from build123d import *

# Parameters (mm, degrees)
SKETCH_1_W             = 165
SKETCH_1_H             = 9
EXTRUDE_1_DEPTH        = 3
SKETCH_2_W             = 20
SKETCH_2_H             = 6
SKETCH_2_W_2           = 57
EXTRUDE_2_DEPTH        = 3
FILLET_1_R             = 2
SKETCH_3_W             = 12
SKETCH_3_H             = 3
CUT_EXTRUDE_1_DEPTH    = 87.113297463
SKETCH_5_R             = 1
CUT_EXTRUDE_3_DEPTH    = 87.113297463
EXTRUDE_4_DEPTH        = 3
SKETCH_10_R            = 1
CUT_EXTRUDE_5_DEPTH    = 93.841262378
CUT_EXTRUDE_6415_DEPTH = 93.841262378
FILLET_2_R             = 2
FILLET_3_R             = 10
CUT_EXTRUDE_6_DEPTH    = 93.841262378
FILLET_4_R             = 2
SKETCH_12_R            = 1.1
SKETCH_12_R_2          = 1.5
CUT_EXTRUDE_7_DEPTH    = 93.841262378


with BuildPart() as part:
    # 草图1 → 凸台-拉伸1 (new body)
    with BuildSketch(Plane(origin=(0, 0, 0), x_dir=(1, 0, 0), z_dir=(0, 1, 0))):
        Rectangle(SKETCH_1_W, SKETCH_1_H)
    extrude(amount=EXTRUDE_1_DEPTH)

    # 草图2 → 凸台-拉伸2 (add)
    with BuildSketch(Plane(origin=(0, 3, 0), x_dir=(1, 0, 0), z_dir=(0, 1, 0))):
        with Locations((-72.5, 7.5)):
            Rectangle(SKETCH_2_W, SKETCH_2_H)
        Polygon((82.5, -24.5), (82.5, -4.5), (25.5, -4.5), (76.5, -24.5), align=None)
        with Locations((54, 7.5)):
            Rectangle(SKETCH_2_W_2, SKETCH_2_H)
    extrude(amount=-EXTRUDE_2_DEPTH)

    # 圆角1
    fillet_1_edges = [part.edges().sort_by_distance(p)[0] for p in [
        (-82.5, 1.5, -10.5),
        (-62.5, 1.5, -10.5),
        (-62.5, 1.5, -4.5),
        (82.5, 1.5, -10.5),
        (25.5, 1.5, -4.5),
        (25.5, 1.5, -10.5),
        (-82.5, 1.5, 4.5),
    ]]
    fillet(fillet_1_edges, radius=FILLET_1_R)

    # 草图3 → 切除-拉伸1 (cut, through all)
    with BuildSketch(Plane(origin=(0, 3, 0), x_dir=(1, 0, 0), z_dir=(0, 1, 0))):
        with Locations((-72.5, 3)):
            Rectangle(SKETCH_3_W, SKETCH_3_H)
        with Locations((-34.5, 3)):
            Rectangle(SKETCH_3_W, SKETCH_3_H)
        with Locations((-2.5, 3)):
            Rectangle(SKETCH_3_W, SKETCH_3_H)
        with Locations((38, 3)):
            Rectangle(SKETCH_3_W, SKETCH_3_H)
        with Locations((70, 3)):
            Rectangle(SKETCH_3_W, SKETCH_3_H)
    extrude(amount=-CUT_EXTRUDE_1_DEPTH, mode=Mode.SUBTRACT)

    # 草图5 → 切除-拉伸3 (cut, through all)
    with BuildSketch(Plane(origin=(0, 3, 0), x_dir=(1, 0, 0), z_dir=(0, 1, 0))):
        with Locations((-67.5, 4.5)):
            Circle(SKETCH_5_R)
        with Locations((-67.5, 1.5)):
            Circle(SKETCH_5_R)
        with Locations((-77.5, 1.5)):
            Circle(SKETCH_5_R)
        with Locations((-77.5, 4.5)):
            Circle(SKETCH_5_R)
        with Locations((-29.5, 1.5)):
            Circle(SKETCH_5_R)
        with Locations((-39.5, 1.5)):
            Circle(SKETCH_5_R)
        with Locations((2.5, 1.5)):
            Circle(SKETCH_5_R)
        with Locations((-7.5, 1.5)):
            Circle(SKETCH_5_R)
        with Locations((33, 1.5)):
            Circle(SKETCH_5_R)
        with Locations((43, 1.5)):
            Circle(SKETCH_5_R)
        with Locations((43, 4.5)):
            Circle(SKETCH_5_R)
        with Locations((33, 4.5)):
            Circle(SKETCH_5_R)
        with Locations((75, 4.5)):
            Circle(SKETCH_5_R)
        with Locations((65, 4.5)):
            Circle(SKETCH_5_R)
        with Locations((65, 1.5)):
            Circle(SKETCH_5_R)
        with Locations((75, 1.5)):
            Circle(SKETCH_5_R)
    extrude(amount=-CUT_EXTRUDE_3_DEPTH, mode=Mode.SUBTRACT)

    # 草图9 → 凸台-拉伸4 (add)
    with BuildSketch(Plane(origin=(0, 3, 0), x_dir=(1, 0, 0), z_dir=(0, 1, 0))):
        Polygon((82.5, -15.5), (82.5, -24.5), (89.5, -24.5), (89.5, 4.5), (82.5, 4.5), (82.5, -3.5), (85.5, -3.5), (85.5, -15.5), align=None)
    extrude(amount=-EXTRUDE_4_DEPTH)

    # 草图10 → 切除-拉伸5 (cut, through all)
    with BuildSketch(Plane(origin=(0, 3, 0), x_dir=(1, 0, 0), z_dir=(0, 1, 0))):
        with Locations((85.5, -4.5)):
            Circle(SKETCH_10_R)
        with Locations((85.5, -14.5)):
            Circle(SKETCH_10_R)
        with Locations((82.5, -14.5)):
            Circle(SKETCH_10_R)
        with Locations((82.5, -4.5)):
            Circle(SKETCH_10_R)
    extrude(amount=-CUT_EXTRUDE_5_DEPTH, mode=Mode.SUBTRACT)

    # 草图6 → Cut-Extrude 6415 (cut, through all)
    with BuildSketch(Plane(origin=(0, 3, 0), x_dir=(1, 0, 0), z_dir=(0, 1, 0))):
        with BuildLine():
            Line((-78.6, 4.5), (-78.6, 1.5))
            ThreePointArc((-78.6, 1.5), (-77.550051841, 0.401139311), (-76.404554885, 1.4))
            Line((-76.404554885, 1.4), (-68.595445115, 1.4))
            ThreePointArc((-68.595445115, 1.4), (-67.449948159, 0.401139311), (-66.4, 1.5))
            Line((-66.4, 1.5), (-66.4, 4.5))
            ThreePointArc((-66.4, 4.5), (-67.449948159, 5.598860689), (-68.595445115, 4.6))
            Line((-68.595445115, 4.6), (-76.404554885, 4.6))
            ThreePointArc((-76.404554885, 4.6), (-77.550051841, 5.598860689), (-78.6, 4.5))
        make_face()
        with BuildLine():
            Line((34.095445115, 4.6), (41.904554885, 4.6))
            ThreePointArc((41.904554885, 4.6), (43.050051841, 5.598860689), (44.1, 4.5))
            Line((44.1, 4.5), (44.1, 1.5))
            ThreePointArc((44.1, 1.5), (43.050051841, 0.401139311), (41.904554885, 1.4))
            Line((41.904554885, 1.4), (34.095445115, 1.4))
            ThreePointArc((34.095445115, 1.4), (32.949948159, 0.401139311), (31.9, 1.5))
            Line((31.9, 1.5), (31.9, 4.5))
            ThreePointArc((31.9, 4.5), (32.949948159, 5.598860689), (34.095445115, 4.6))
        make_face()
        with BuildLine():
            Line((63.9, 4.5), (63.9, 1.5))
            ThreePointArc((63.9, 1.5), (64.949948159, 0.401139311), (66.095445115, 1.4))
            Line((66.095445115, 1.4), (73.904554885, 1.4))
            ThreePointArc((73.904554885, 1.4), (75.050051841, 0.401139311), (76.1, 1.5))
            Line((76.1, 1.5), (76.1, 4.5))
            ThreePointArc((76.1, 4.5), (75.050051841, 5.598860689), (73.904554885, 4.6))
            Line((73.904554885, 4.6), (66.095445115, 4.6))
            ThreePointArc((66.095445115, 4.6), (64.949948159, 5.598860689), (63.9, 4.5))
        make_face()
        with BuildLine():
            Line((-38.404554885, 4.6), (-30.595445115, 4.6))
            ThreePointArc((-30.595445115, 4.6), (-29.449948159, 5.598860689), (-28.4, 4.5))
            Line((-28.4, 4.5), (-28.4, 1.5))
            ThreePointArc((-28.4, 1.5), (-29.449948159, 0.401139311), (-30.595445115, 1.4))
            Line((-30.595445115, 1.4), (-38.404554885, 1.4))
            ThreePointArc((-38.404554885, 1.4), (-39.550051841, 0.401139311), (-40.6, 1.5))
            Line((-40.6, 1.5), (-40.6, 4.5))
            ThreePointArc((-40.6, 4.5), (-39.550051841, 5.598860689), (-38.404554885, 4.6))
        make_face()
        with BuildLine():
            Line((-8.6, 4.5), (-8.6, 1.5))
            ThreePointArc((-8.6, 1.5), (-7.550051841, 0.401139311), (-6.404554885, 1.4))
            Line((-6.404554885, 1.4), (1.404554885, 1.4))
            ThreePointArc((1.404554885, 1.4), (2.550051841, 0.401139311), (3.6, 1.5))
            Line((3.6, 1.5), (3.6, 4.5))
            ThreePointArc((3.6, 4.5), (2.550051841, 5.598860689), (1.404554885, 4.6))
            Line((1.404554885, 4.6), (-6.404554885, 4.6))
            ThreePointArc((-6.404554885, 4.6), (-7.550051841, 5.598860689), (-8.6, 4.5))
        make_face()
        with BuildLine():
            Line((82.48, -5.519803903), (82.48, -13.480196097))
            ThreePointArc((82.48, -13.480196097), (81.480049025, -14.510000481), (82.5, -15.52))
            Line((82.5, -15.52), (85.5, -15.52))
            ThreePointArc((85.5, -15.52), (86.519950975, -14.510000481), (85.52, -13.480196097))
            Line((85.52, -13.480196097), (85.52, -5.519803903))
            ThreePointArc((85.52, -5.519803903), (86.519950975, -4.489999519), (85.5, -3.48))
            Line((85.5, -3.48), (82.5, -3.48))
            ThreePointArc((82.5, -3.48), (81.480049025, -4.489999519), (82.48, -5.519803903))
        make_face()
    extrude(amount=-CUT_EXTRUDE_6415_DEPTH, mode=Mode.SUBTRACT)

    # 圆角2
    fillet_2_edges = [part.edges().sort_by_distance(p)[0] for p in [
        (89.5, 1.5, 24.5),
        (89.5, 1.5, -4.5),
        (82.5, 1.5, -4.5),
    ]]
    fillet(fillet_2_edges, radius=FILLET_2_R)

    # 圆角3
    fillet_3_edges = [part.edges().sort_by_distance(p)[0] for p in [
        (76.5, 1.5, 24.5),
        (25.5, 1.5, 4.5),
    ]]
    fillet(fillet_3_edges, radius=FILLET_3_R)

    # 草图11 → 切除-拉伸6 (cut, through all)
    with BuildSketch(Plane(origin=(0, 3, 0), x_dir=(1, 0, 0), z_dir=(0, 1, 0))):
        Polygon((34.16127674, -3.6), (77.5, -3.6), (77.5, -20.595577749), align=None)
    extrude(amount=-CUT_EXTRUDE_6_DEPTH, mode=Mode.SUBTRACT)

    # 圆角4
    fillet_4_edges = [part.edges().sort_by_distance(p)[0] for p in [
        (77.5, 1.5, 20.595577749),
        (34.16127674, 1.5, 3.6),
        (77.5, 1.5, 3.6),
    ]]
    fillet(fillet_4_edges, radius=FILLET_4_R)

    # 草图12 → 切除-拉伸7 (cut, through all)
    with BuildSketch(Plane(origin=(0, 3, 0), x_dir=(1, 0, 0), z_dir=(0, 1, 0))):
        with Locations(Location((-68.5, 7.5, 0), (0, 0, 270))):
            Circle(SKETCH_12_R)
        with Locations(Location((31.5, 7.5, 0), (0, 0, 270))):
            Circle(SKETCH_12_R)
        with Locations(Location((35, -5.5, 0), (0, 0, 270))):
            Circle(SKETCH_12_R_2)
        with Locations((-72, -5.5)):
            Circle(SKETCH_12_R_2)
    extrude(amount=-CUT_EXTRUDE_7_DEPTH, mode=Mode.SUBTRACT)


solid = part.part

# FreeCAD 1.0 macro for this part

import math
import FreeCAD as App
import Part
import Sketcher
Q = App.Units.Quantity


def edges_at(feature, points):
    """Names of the edges that pass closest to the given points."""
    edges = feature.Shape.Edges
    near = lambda p: min(range(len(edges)), key=lambda i: edges[i].distToShape(Part.Vertex(*p))[0])
    return sorted({f"Edge{near(p) + 1}" for p in points})


def add_polygon(sketch, points):
    """Adds a closed chain of lines whose ends are joined by coincident constraints."""
    first, n = sketch.GeometryCount, len(points)
    for a, b in zip(points, points[1:] + points[:1]):
        sketch.addGeometry(Part.LineSegment(App.Vector(*a, 0), App.Vector(*b, 0)), False)
    for i in range(n):
        sketch.addConstraint(Sketcher.Constraint("Coincident", first + i, 2, first + (i + 1) % n, 1))

doc = App.newDocument("Part")
body = doc.addObject("PartDesign::Body", "Body")

sketch1 = doc.addObject("Sketcher::SketchObject", "Sketch")
body.addObject(sketch1)
sketch1.AttachmentSupport = (doc.XZ_Plane, [""])
sketch1.MapMode = "FlatFace"
add_polygon(sketch1, [(-82, -4), (-82, 4), (82, 4), (82, -4)])
sketch1.addConstraint(Sketcher.Constraint("Vertical", 0))
sketch1.addConstraint(Sketcher.Constraint("Horizontal", 1))
sketch1.addConstraint(Sketcher.Constraint("Vertical", 2))
sketch1.addConstraint(Sketcher.Constraint("Horizontal", 3))
sketch1.addConstraint(Sketcher.Constraint("Symmetric", 0, 2, 2, 2, -1, 1))
sketch1.addConstraint(Sketcher.Constraint("DistanceX", 1, 1, 1, 2, Q("165 mm")))
sketch1.addConstraint(Sketcher.Constraint("DistanceY", 0, 1, 0, 2, Q("9 mm")))
pad1 = doc.addObject("PartDesign::Pad", "Pad")
body.addObject(pad1)
pad1.Profile = sketch1
pad1.Length = 3
pad1.Reversed = True

sketch2 = doc.addObject("Sketcher::SketchObject", "Sketch001")
body.addObject(sketch2)
sketch2.AttachmentSupport = (doc.XZ_Plane, [""])
sketch2.MapMode = "FlatFace"
sketch2.AttachmentOffset = App.Placement(App.Vector(0, 0, -3), App.Rotation())
add_polygon(sketch2, [(-82, -10), (-82, -4), (-62, -4), (-62, -10)])
add_polygon(sketch2, [(82, 24), (82, 4), (26, 4), (76, 24)])
add_polygon(sketch2, [(26, -10), (26, -4), (82, -4), (82, -10)])
sketch2.addConstraint(Sketcher.Constraint("Vertical", 0))
sketch2.addConstraint(Sketcher.Constraint("Horizontal", 1))
sketch2.addConstraint(Sketcher.Constraint("Vertical", 2))
sketch2.addConstraint(Sketcher.Constraint("Horizontal", 3))
sketch2.addConstraint(Sketcher.Constraint("Vertical", 4))
sketch2.addConstraint(Sketcher.Constraint("Horizontal", 5))
sketch2.addConstraint(Sketcher.Constraint("Horizontal", 7))
sketch2.addConstraint(Sketcher.Constraint("Vertical", 8))
sketch2.addConstraint(Sketcher.Constraint("Horizontal", 9))
sketch2.addConstraint(Sketcher.Constraint("Vertical", 10))
sketch2.addConstraint(Sketcher.Constraint("Horizontal", 11))
sketch2.addConstraint(Sketcher.Constraint("Symmetric", 0, 2, 4, 2, -1, 1))
sketch2.addConstraint(Sketcher.Constraint("Symmetric", 0, 2, 9, 2, -2))
sketch2.addConstraint(Sketcher.Constraint("Horizontal", 3, 2, 10, 2))
sketch2.addConstraint(Sketcher.Constraint("Vertical", 5, 2, 8, 2))
sketch2.addConstraint(Sketcher.Constraint("Equal", 7, 0))
sketch2.addConstraint(Sketcher.Constraint("Equal", 3, 4))
sketch2.addConstraint(Sketcher.Constraint("DistanceX", 1, 1, 1, 2, Q("20 mm")))
sketch2.addConstraint(Sketcher.Constraint("DistanceX", 5, 2, 5, 1, Q("57 mm")))
sketch2.addConstraint(Sketcher.Constraint("DistanceX", 7, 1, 7, 2, Q("6 mm")))
sketch2.addConstraint(Sketcher.Constraint("DistanceX", 1, 2, 4, 2, Q("145 mm")))
sketch2.addConstraint(Sketcher.Constraint("DistanceY", 1, 2, 4, 2, Q("9 mm")))
pad2 = doc.addObject("PartDesign::Pad", "Pad001")
body.addObject(pad2)
pad2.Profile = sketch2
pad2.Length = 3
doc.recompute()

fillet = doc.addObject("PartDesign::Fillet", "Fillet")
body.addObject(fillet)
fillet.Base = (pad2, edges_at(pad2, [
    (-82.5, 1.5, -10.5),
    (-62.5, 1.5, -10.5),
    (-62.5, 1.5, -4.5),
    (82.5, 1.5, -10.5),
    (25.5, 1.5, -4.5),
    (25.5, 1.5, -10.5),
    (-82.5, 1.5, 4.5),
]))
fillet.Radius = 2

sketch3 = doc.addObject("Sketcher::SketchObject", "Sketch002")
body.addObject(sketch3)
sketch3.AttachmentSupport = (doc.XZ_Plane, [""])
sketch3.MapMode = "FlatFace"
sketch3.AttachmentOffset = App.Placement(App.Vector(0, 0, -3), App.Rotation())
add_polygon(sketch3, [(-78.5, -4.5), (-78.5, -1.5), (-66.5, -1.5), (-66.5, -4.5)])
add_polygon(sketch3, [(-40.5, -4.5), (-40.5, -1.5), (-28.5, -1.5), (-28.5, -4.5)])
add_polygon(sketch3, [(-8.5, -4.5), (-8.5, -1.5), (3.5, -1.5), (3.5, -4.5)])
add_polygon(sketch3, [(32, -4.5), (32, -1.5), (44, -1.5), (44, -4.5)])
add_polygon(sketch3, [(64, -4.5), (64, -1.5), (76, -1.5), (76, -4.5)])
sketch3.addConstraint(Sketcher.Constraint("Vertical", 0))
sketch3.addConstraint(Sketcher.Constraint("Horizontal", 1))
sketch3.addConstraint(Sketcher.Constraint("Vertical", 2))
sketch3.addConstraint(Sketcher.Constraint("Horizontal", 3))
sketch3.addConstraint(Sketcher.Constraint("Vertical", 4))
sketch3.addConstraint(Sketcher.Constraint("Horizontal", 5))
sketch3.addConstraint(Sketcher.Constraint("Vertical", 6))
sketch3.addConstraint(Sketcher.Constraint("Horizontal", 7))
sketch3.addConstraint(Sketcher.Constraint("Vertical", 8))
sketch3.addConstraint(Sketcher.Constraint("Horizontal", 9))
sketch3.addConstraint(Sketcher.Constraint("Vertical", 10))
sketch3.addConstraint(Sketcher.Constraint("Horizontal", 11))
sketch3.addConstraint(Sketcher.Constraint("Vertical", 12))
sketch3.addConstraint(Sketcher.Constraint("Horizontal", 13))
sketch3.addConstraint(Sketcher.Constraint("Vertical", 14))
sketch3.addConstraint(Sketcher.Constraint("Horizontal", 15))
sketch3.addConstraint(Sketcher.Constraint("Vertical", 16))
sketch3.addConstraint(Sketcher.Constraint("Horizontal", 17))
sketch3.addConstraint(Sketcher.Constraint("Vertical", 18))
sketch3.addConstraint(Sketcher.Constraint("Horizontal", 19))
sketch3.addConstraint(Sketcher.Constraint("Horizontal", 1, 2, 4, 2))
sketch3.addConstraint(Sketcher.Constraint("Horizontal", 3, 2, 6, 2))
sketch3.addConstraint(Sketcher.Constraint("Horizontal", 5, 2, 8, 2))
sketch3.addConstraint(Sketcher.Constraint("Horizontal", 7, 2, 10, 2))
sketch3.addConstraint(Sketcher.Constraint("Horizontal", 9, 2, 12, 2))
sketch3.addConstraint(Sketcher.Constraint("Horizontal", 11, 2, 14, 2))
sketch3.addConstraint(Sketcher.Constraint("Horizontal", 13, 2, 16, 2))
sketch3.addConstraint(Sketcher.Constraint("Horizontal", 15, 2, 18, 2))
sketch3.addConstraint(Sketcher.Constraint("Equal", 3, 5))
sketch3.addConstraint(Sketcher.Constraint("Equal", 7, 9))
sketch3.addConstraint(Sketcher.Constraint("Equal", 11, 13))
sketch3.addConstraint(Sketcher.Constraint("Equal", 15, 17))
sketch3.addConstraint(Sketcher.Constraint("DistanceX", 1, 1, 1, 2, Q("12 mm")))
sketch3.addConstraint(Sketcher.Constraint("DistanceY", 0, 1, 0, 2, Q("3 mm")))
sketch3.addConstraint(Sketcher.Constraint("DistanceX", -1, 1, 12, 2, Q("32 mm")))
sketch3.addConstraint(Sketcher.Constraint("DistanceX", -1, 1, 16, 2, Q("64 mm")))
sketch3.addConstraint(Sketcher.Constraint("DistanceX", 1, 2, 4, 2, Q("26 mm")))
sketch3.addConstraint(Sketcher.Constraint("DistanceX", 5, 2, 8, 2, Q("20 mm")))
sketch3.addConstraint(Sketcher.Constraint("DistanceX", 0, 2, -1, 1, Q("78.5 mm")))
sketch3.addConstraint(Sketcher.Constraint("DistanceY", 0, 2, -1, 1, Q("1.5 mm")))
pocket1 = doc.addObject("PartDesign::Pocket", "Pocket")
body.addObject(pocket1)
pocket1.Profile = sketch3
pocket1.Type = "ThroughAll"
pocket1.Reversed = True

sketch4 = doc.addObject("Sketcher::SketchObject", "Sketch003")
body.addObject(sketch4)
sketch4.AttachmentSupport = (doc.XZ_Plane, [""])
sketch4.MapMode = "FlatFace"
sketch4.AttachmentOffset = App.Placement(App.Vector(0, 0, -3), App.Rotation())
sketch4.addGeometry(Part.Circle(App.Vector(-67.5, -4.5, 0), App.Vector(0, 0, 1), 1), False)
sketch4.addGeometry(Part.Circle(App.Vector(-67.5, -1.5, 0), App.Vector(0, 0, 1), 1), False)
sketch4.addGeometry(Part.Circle(App.Vector(-77.5, -1.5, 0), App.Vector(0, 0, 1), 1), False)
sketch4.addGeometry(Part.Circle(App.Vector(-77.5, -4.5, 0), App.Vector(0, 0, 1), 1), False)
sketch4.addGeometry(Part.Circle(App.Vector(-29.5, -1.5, 0), App.Vector(0, 0, 1), 1), False)
sketch4.addGeometry(Part.Circle(App.Vector(-39.5, -1.5, 0), App.Vector(0, 0, 1), 1), False)
sketch4.addGeometry(Part.Circle(App.Vector(2.5, -1.5, 0), App.Vector(0, 0, 1), 1), False)
sketch4.addGeometry(Part.Circle(App.Vector(-7.5, -1.5, 0), App.Vector(0, 0, 1), 1), False)
sketch4.addGeometry(Part.Circle(App.Vector(33, -1.5, 0), App.Vector(0, 0, 1), 1), False)
sketch4.addGeometry(Part.Circle(App.Vector(43, -1.5, 0), App.Vector(0, 0, 1), 1), False)
sketch4.addGeometry(Part.Circle(App.Vector(43, -4.5, 0), App.Vector(0, 0, 1), 1), False)
sketch4.addGeometry(Part.Circle(App.Vector(33, -4.5, 0), App.Vector(0, 0, 1), 1), False)
sketch4.addGeometry(Part.Circle(App.Vector(75, -4.5, 0), App.Vector(0, 0, 1), 1), False)
sketch4.addGeometry(Part.Circle(App.Vector(65, -4.5, 0), App.Vector(0, 0, 1), 1), False)
sketch4.addGeometry(Part.Circle(App.Vector(65, -1.5, 0), App.Vector(0, 0, 1), 1), False)
sketch4.addGeometry(Part.Circle(App.Vector(75, -1.5, 0), App.Vector(0, 0, 1), 1), False)
sketch4.addConstraint(Sketcher.Constraint("Equal", 0, 1))
sketch4.addConstraint(Sketcher.Constraint("Equal", 1, 2))
sketch4.addConstraint(Sketcher.Constraint("Equal", 2, 3))
sketch4.addConstraint(Sketcher.Constraint("Equal", 3, 4))
sketch4.addConstraint(Sketcher.Constraint("Equal", 4, 5))
sketch4.addConstraint(Sketcher.Constraint("Equal", 5, 6))
sketch4.addConstraint(Sketcher.Constraint("Equal", 6, 7))
sketch4.addConstraint(Sketcher.Constraint("Equal", 7, 8))
sketch4.addConstraint(Sketcher.Constraint("Equal", 8, 9))
sketch4.addConstraint(Sketcher.Constraint("Equal", 9, 10))
sketch4.addConstraint(Sketcher.Constraint("Equal", 10, 11))
sketch4.addConstraint(Sketcher.Constraint("Equal", 11, 12))
sketch4.addConstraint(Sketcher.Constraint("Equal", 12, 13))
sketch4.addConstraint(Sketcher.Constraint("Equal", 13, 14))
sketch4.addConstraint(Sketcher.Constraint("Equal", 14, 15))
sketch4.addConstraint(Sketcher.Constraint("Horizontal", 1, 3, 2, 3))
sketch4.addConstraint(Sketcher.Constraint("Horizontal", 0, 3, 3, 3))
sketch4.addConstraint(Sketcher.Constraint("Horizontal", 2, 3, 4, 3))
sketch4.addConstraint(Sketcher.Constraint("Horizontal", 4, 3, 5, 3))
sketch4.addConstraint(Sketcher.Constraint("Horizontal", 5, 3, 6, 3))
sketch4.addConstraint(Sketcher.Constraint("Horizontal", 6, 3, 7, 3))
sketch4.addConstraint(Sketcher.Constraint("Horizontal", 7, 3, 8, 3))
sketch4.addConstraint(Sketcher.Constraint("Horizontal", 8, 3, 9, 3))
sketch4.addConstraint(Sketcher.Constraint("Horizontal", 3, 3, 10, 3))
sketch4.addConstraint(Sketcher.Constraint("Horizontal", 10, 3, 11, 3))
sketch4.addConstraint(Sketcher.Constraint("Horizontal", 11, 3, 12, 3))
sketch4.addConstraint(Sketcher.Constraint("Horizontal", 12, 3, 13, 3))
sketch4.addConstraint(Sketcher.Constraint("Horizontal", 9, 3, 14, 3))
sketch4.addConstraint(Sketcher.Constraint("Horizontal", 14, 3, 15, 3))
sketch4.addConstraint(Sketcher.Constraint("Vertical", 0, 3, 1, 3))
sketch4.addConstraint(Sketcher.Constraint("Vertical", 2, 3, 3, 3))
sketch4.addConstraint(Sketcher.Constraint("Vertical", 9, 3, 10, 3))
sketch4.addConstraint(Sketcher.Constraint("Vertical", 8, 3, 11, 3))
sketch4.addConstraint(Sketcher.Constraint("Vertical", 13, 3, 14, 3))
sketch4.addConstraint(Sketcher.Constraint("Vertical", 12, 3, 15, 3))
sketch4.addConstraint(Sketcher.Constraint("Diameter", 0, Q("2 mm")))
sketch4.addConstraint(Sketcher.Constraint("DistanceX", -1, 1, 8, 3, Q("33 mm")))
sketch4.addConstraint(Sketcher.Constraint("DistanceX", -1, 1, 9, 3, Q("43 mm")))
sketch4.addConstraint(Sketcher.Constraint("DistanceX", -1, 1, 12, 3, Q("75 mm")))
sketch4.addConstraint(Sketcher.Constraint("DistanceX", -1, 1, 13, 3, Q("65 mm")))
sketch4.addConstraint(Sketcher.Constraint("DistanceY", 0, 3, 1, 3, Q("3 mm")))
sketch4.addConstraint(Sketcher.Constraint("DistanceX", 2, 3, 1, 3, Q("10 mm")))
sketch4.addConstraint(Sketcher.Constraint("DistanceX", 1, 3, 4, 3, Q("38 mm")))
sketch4.addConstraint(Sketcher.Constraint("DistanceX", 5, 3, 4, 3, Q("10 mm")))
sketch4.addConstraint(Sketcher.Constraint("DistanceX", 4, 3, 6, 3, Q("32 mm")))
sketch4.addConstraint(Sketcher.Constraint("DistanceX", 7, 3, 6, 3, Q("10 mm")))
sketch4.addConstraint(Sketcher.Constraint("DistanceX", 0, 3, -1, 1, Q("67.5 mm")))
sketch4.addConstraint(Sketcher.Constraint("DistanceY", 0, 3, -1, 1, Q("4.5 mm")))
pocket2 = doc.addObject("PartDesign::Pocket", "Pocket001")
body.addObject(pocket2)
pocket2.Profile = sketch4
pocket2.Type = "ThroughAll"
pocket2.Reversed = True

sketch5 = doc.addObject("Sketcher::SketchObject", "Sketch004")
body.addObject(sketch5)
sketch5.AttachmentSupport = (doc.XZ_Plane, [""])
sketch5.MapMode = "FlatFace"
sketch5.AttachmentOffset = App.Placement(App.Vector(0, 0, -3), App.Rotation())
add_polygon(sketch5, [(82.5, 15.5), (82.5, 24.5), (89.5, 24.5), (89.5, -4.5), (82.5, -4.5), (82.5, 3.5), (85.5, 3.5), (85.5, 15.5)])
sketch5.addConstraint(Sketcher.Constraint("Vertical", 0))
sketch5.addConstraint(Sketcher.Constraint("Horizontal", 1))
sketch5.addConstraint(Sketcher.Constraint("Vertical", 2))
sketch5.addConstraint(Sketcher.Constraint("Horizontal", 3))
sketch5.addConstraint(Sketcher.Constraint("Vertical", 4))
sketch5.addConstraint(Sketcher.Constraint("Horizontal", 5))
sketch5.addConstraint(Sketcher.Constraint("Vertical", 6))
sketch5.addConstraint(Sketcher.Constraint("Horizontal", 7))
sketch5.addConstraint(Sketcher.Constraint("Vertical", 0, 2, 3, 2))
sketch5.addConstraint(Sketcher.Constraint("DistanceX", 1, 1, 1, 2, Q("7 mm")))
sketch5.addConstraint(Sketcher.Constraint("DistanceX", 5, 1, 5, 2, Q("3 mm")))
sketch5.addConstraint(Sketcher.Constraint("DistanceY", 0, 1, 0, 2, Q("9 mm")))
sketch5.addConstraint(Sketcher.Constraint("DistanceY", 2, 2, 2, 1, Q("29 mm")))
sketch5.addConstraint(Sketcher.Constraint("DistanceY", 4, 1, 4, 2, Q("8 mm")))
sketch5.addConstraint(Sketcher.Constraint("DistanceX", -1, 1, 0, 2, Q("82.5 mm")))
sketch5.addConstraint(Sketcher.Constraint("DistanceY", -1, 1, 0, 2, Q("24.5 mm")))
pad3 = doc.addObject("PartDesign::Pad", "Pad002")
body.addObject(pad3)
pad3.Profile = sketch5
pad3.Length = 3

sketch6 = doc.addObject("Sketcher::SketchObject", "Sketch005")
body.addObject(sketch6)
sketch6.AttachmentSupport = (doc.XZ_Plane, [""])
sketch6.MapMode = "FlatFace"
sketch6.AttachmentOffset = App.Placement(App.Vector(0, 0, -3), App.Rotation())
sketch6.addGeometry(Part.Circle(App.Vector(85.5, 4.5, 0), App.Vector(0, 0, 1), 1), False)
sketch6.addGeometry(Part.Circle(App.Vector(85.5, 14.5, 0), App.Vector(0, 0, 1), 1), False)
sketch6.addGeometry(Part.Circle(App.Vector(82.5, 14.5, 0), App.Vector(0, 0, 1), 1), False)
sketch6.addGeometry(Part.Circle(App.Vector(82.5, 4.5, 0), App.Vector(0, 0, 1), 1), False)
sketch6.addConstraint(Sketcher.Constraint("Equal", 0, 1))
sketch6.addConstraint(Sketcher.Constraint("Equal", 1, 2))
sketch6.addConstraint(Sketcher.Constraint("Equal", 2, 3))
sketch6.addConstraint(Sketcher.Constraint("Horizontal", 1, 3, 2, 3))
sketch6.addConstraint(Sketcher.Constraint("Horizontal", 0, 3, 3, 3))
sketch6.addConstraint(Sketcher.Constraint("Vertical", 0, 3, 1, 3))
sketch6.addConstraint(Sketcher.Constraint("Vertical", 2, 3, 3, 3))
sketch6.addConstraint(Sketcher.Constraint("Diameter", 0, Q("2 mm")))
sketch6.addConstraint(Sketcher.Constraint("DistanceY", 0, 3, 1, 3, Q("10 mm")))
sketch6.addConstraint(Sketcher.Constraint("DistanceX", 2, 3, 1, 3, Q("3 mm")))
sketch6.addConstraint(Sketcher.Constraint("DistanceX", -1, 1, 0, 3, Q("85.5 mm")))
sketch6.addConstraint(Sketcher.Constraint("DistanceY", -1, 1, 0, 3, Q("4.5 mm")))
pocket3 = doc.addObject("PartDesign::Pocket", "Pocket002")
body.addObject(pocket3)
pocket3.Profile = sketch6
pocket3.Type = "ThroughAll"
pocket3.Reversed = True

sketch7 = doc.addObject("Sketcher::SketchObject", "Sketch006")
body.addObject(sketch7)
sketch7.AttachmentSupport = (doc.XZ_Plane, [""])
sketch7.MapMode = "FlatFace"
sketch7.AttachmentOffset = App.Placement(App.Vector(0, 0, -3), App.Rotation())
sketch7.addGeometry(Part.LineSegment(App.Vector(-78.6, -4.5, 0), App.Vector(-78.6, -1.5, 0)), False)
sketch7.addGeometry(Part.ArcOfCircle(Part.Circle(App.Vector(-77.5, -1.5, 0), App.Vector(0, 0, 1), 1.1), math.radians(5), math.radians(180)), False)
sketch7.addGeometry(Part.LineSegment(App.Vector(-76.4, -1.4, 0), App.Vector(-68.6, -1.4, 0)), False)
sketch7.addGeometry(Part.ArcOfCircle(Part.Circle(App.Vector(-67.5, -1.5, 0), App.Vector(0, 0, 1), 1.1), math.radians(0), math.radians(175)), False)
sketch7.addGeometry(Part.LineSegment(App.Vector(-66.4, -1.5, 0), App.Vector(-66.4, -4.5, 0)), False)
sketch7.addGeometry(Part.ArcOfCircle(Part.Circle(App.Vector(-67.5, -4.5, 0), App.Vector(0, 0, 1), 1.1), math.radians(-175), math.radians(0)), False)
sketch7.addGeometry(Part.LineSegment(App.Vector(-68.6, -4.6, 0), App.Vector(-76.4, -4.6, 0)), False)
sketch7.addGeometry(Part.ArcOfCircle(Part.Circle(App.Vector(-77.5, -4.5, 0), App.Vector(0, 0, 1), 1.1), math.radians(180), math.radians(355)), False)
sketch7.addGeometry(Part.LineSegment(App.Vector(41.9, -4.6, 0), App.Vector(34.1, -4.6, 0)), False)
sketch7.addGeometry(Part.ArcOfCircle(Part.Circle(App.Vector(33, -4.5, 0), App.Vector(0, 0, 1), 1.1), math.radians(180), math.radians(355)), False)
sketch7.addGeometry(Part.LineSegment(App.Vector(31.9, -4.5, 0), App.Vector(31.9, -1.5, 0)), False)
sketch7.addGeometry(Part.ArcOfCircle(Part.Circle(App.Vector(33, -1.5, 0), App.Vector(0, 0, 1), 1.1), math.radians(5), math.radians(180)), False)
sketch7.addGeometry(Part.LineSegment(App.Vector(34.1, -1.4, 0), App.Vector(41.9, -1.4, 0)), False)
sketch7.addGeometry(Part.ArcOfCircle(Part.Circle(App.Vector(43, -1.5, 0), App.Vector(0, 0, 1), 1.1), math.radians(0), math.radians(175)), False)
sketch7.addGeometry(Part.LineSegment(App.Vector(44.1, -1.5, 0), App.Vector(44.1, -4.5, 0)), False)
sketch7.addGeometry(Part.ArcOfCircle(Part.Circle(App.Vector(43, -4.5, 0), App.Vector(0, 0, 1), 1.1), math.radians(-175), math.radians(0)), False)
sketch7.addGeometry(Part.LineSegment(App.Vector(63.9, -4.5, 0), App.Vector(63.9, -1.5, 0)), False)
sketch7.addGeometry(Part.ArcOfCircle(Part.Circle(App.Vector(65, -1.5, 0), App.Vector(0, 0, 1), 1.1), math.radians(5), math.radians(180)), False)
sketch7.addGeometry(Part.LineSegment(App.Vector(66.1, -1.4, 0), App.Vector(73.9, -1.4, 0)), False)
sketch7.addGeometry(Part.ArcOfCircle(Part.Circle(App.Vector(75, -1.5, 0), App.Vector(0, 0, 1), 1.1), math.radians(0), math.radians(175)), False)
sketch7.addGeometry(Part.LineSegment(App.Vector(76.1, -1.5, 0), App.Vector(76.1, -4.5, 0)), False)
sketch7.addGeometry(Part.ArcOfCircle(Part.Circle(App.Vector(75, -4.5, 0), App.Vector(0, 0, 1), 1.1), math.radians(-175), math.radians(0)), False)
sketch7.addGeometry(Part.LineSegment(App.Vector(73.9, -4.6, 0), App.Vector(66.1, -4.6, 0)), False)
sketch7.addGeometry(Part.ArcOfCircle(Part.Circle(App.Vector(65, -4.5, 0), App.Vector(0, 0, 1), 1.1), math.radians(180), math.radians(355)), False)
sketch7.addGeometry(Part.LineSegment(App.Vector(-30.6, -4.6, 0), App.Vector(-38.4, -4.6, 0)), False)
sketch7.addGeometry(Part.ArcOfCircle(Part.Circle(App.Vector(-39.5, -4.5, 0), App.Vector(0, 0, 1), 1.1), math.radians(180), math.radians(355)), False)
sketch7.addGeometry(Part.LineSegment(App.Vector(-40.6, -4.5, 0), App.Vector(-40.6, -1.5, 0)), False)
sketch7.addGeometry(Part.ArcOfCircle(Part.Circle(App.Vector(-39.5, -1.5, 0), App.Vector(0, 0, 1), 1.1), math.radians(5), math.radians(180)), False)
sketch7.addGeometry(Part.LineSegment(App.Vector(-38.4, -1.4, 0), App.Vector(-30.6, -1.4, 0)), False)
sketch7.addGeometry(Part.ArcOfCircle(Part.Circle(App.Vector(-29.5, -1.5, 0), App.Vector(0, 0, 1), 1.1), math.radians(0), math.radians(175)), False)
sketch7.addGeometry(Part.LineSegment(App.Vector(-28.4, -1.5, 0), App.Vector(-28.4, -4.5, 0)), False)
sketch7.addGeometry(Part.ArcOfCircle(Part.Circle(App.Vector(-29.5, -4.5, 0), App.Vector(0, 0, 1), 1.1), math.radians(-175), math.radians(0)), False)
sketch7.addGeometry(Part.LineSegment(App.Vector(-8.6, -4.5, 0), App.Vector(-8.6, -1.5, 0)), False)
sketch7.addGeometry(Part.ArcOfCircle(Part.Circle(App.Vector(-7.5, -1.5, 0), App.Vector(0, 0, 1), 1.1), math.radians(5), math.radians(180)), False)
sketch7.addGeometry(Part.LineSegment(App.Vector(-6.4, -1.4, 0), App.Vector(1.4, -1.4, 0)), False)
sketch7.addGeometry(Part.ArcOfCircle(Part.Circle(App.Vector(2.5, -1.5, 0), App.Vector(0, 0, 1), 1.1), math.radians(0), math.radians(175)), False)
sketch7.addGeometry(Part.LineSegment(App.Vector(3.6, -1.5, 0), App.Vector(3.6, -4.5, 0)), False)
sketch7.addGeometry(Part.ArcOfCircle(Part.Circle(App.Vector(2.5, -4.5, 0), App.Vector(0, 0, 1), 1.1), math.radians(-175), math.radians(0)), False)
sketch7.addGeometry(Part.LineSegment(App.Vector(1.4, -4.6, 0), App.Vector(-6.4, -4.6, 0)), False)
sketch7.addGeometry(Part.ArcOfCircle(Part.Circle(App.Vector(-7.5, -4.5, 0), App.Vector(0, 0, 1), 1.1), math.radians(180), math.radians(355)), False)
sketch7.addGeometry(Part.LineSegment(App.Vector(82.5, 5.5, 0), App.Vector(82.5, 13.5, 0)), False)
sketch7.addGeometry(Part.ArcOfCircle(Part.Circle(App.Vector(82.5, 14.5, 0), App.Vector(0, 0, 1), 1), math.radians(90), math.radians(269)), False)
sketch7.addGeometry(Part.LineSegment(App.Vector(82.5, 15.5, 0), App.Vector(85.5, 15.5, 0)), False)
sketch7.addGeometry(Part.ArcOfCircle(Part.Circle(App.Vector(85.5, 14.5, 0), App.Vector(0, 0, 1), 1), math.radians(-89), math.radians(90)), False)
sketch7.addGeometry(Part.LineSegment(App.Vector(85.5, 13.5, 0), App.Vector(85.5, 5.5, 0)), False)
sketch7.addGeometry(Part.ArcOfCircle(Part.Circle(App.Vector(85.5, 4.5, 0), App.Vector(0, 0, 1), 1), math.radians(-90), math.radians(89)), False)
sketch7.addGeometry(Part.LineSegment(App.Vector(85.5, 3.5, 0), App.Vector(82.5, 3.5, 0)), False)
sketch7.addGeometry(Part.ArcOfCircle(Part.Circle(App.Vector(82.5, 4.5, 0), App.Vector(0, 0, 1), 1), math.radians(91), math.radians(270)), False)
sketch7.addConstraint(Sketcher.Constraint("Tangent", 0, 2, 1, 2))
sketch7.addConstraint(Sketcher.Constraint("Coincident", 1, 1, 2, 1))
sketch7.addConstraint(Sketcher.Constraint("Coincident", 2, 2, 3, 2))
sketch7.addConstraint(Sketcher.Constraint("Tangent", 3, 1, 4, 1))
sketch7.addConstraint(Sketcher.Constraint("Tangent", 4, 2, 5, 2))
sketch7.addConstraint(Sketcher.Constraint("Coincident", 5, 1, 6, 1))
sketch7.addConstraint(Sketcher.Constraint("Coincident", 6, 2, 7, 2))
sketch7.addConstraint(Sketcher.Constraint("Tangent", 7, 1, 0, 1))
sketch7.addConstraint(Sketcher.Constraint("Coincident", 8, 2, 9, 2))
sketch7.addConstraint(Sketcher.Constraint("Tangent", 9, 1, 10, 1))
sketch7.addConstraint(Sketcher.Constraint("Tangent", 10, 2, 11, 2))
sketch7.addConstraint(Sketcher.Constraint("Coincident", 11, 1, 12, 1))
sketch7.addConstraint(Sketcher.Constraint("Coincident", 12, 2, 13, 2))
sketch7.addConstraint(Sketcher.Constraint("Tangent", 13, 1, 14, 1))
sketch7.addConstraint(Sketcher.Constraint("Tangent", 14, 2, 15, 2))
sketch7.addConstraint(Sketcher.Constraint("Coincident", 15, 1, 8, 1))
sketch7.addConstraint(Sketcher.Constraint("Tangent", 16, 2, 17, 2))
sketch7.addConstraint(Sketcher.Constraint("Coincident", 17, 1, 18, 1))
sketch7.addConstraint(Sketcher.Constraint("Coincident", 18, 2, 19, 2))
sketch7.addConstraint(Sketcher.Constraint("Tangent", 19, 1, 20, 1))
sketch7.addConstraint(Sketcher.Constraint("Tangent", 20, 2, 21, 2))
sketch7.addConstraint(Sketcher.Constraint("Coincident", 21, 1, 22, 1))
sketch7.addConstraint(Sketcher.Constraint("Coincident", 22, 2, 23, 2))
sketch7.addConstraint(Sketcher.Constraint("Tangent", 23, 1, 16, 1))
sketch7.addConstraint(Sketcher.Constraint("Coincident", 24, 2, 25, 2))
sketch7.addConstraint(Sketcher.Constraint("Tangent", 25, 1, 26, 1))
sketch7.addConstraint(Sketcher.Constraint("Tangent", 26, 2, 27, 2))
sketch7.addConstraint(Sketcher.Constraint("Coincident", 27, 1, 28, 1))
sketch7.addConstraint(Sketcher.Constraint("Coincident", 28, 2, 29, 2))
sketch7.addConstraint(Sketcher.Constraint("Tangent", 29, 1, 30, 1))
sketch7.addConstraint(Sketcher.Constraint("Tangent", 30, 2, 31, 2))
sketch7.addConstraint(Sketcher.Constraint("Coincident", 31, 1, 24, 1))
sketch7.addConstraint(Sketcher.Constraint("Tangent", 32, 2, 33, 2))
sketch7.addConstraint(Sketcher.Constraint("Coincident", 33, 1, 34, 1))
sketch7.addConstraint(Sketcher.Constraint("Coincident", 34, 2, 35, 2))
sketch7.addConstraint(Sketcher.Constraint("Tangent", 35, 1, 36, 1))
sketch7.addConstraint(Sketcher.Constraint("Tangent", 36, 2, 37, 2))
sketch7.addConstraint(Sketcher.Constraint("Coincident", 37, 1, 38, 1))
sketch7.addConstraint(Sketcher.Constraint("Coincident", 38, 2, 39, 2))
sketch7.addConstraint(Sketcher.Constraint("Tangent", 39, 1, 32, 1))
sketch7.addConstraint(Sketcher.Constraint("Coincident", 40, 2, 41, 2))
sketch7.addConstraint(Sketcher.Constraint("Tangent", 41, 1, 42, 1))
sketch7.addConstraint(Sketcher.Constraint("Tangent", 42, 2, 43, 2))
sketch7.addConstraint(Sketcher.Constraint("Coincident", 43, 1, 44, 1))
sketch7.addConstraint(Sketcher.Constraint("Coincident", 44, 2, 45, 2))
sketch7.addConstraint(Sketcher.Constraint("Tangent", 45, 1, 46, 1))
sketch7.addConstraint(Sketcher.Constraint("Tangent", 46, 2, 47, 2))
sketch7.addConstraint(Sketcher.Constraint("Coincident", 47, 1, 40, 1))
sketch7.addConstraint(Sketcher.Constraint("Vertical", 0))
sketch7.addConstraint(Sketcher.Constraint("Horizontal", 2))
sketch7.addConstraint(Sketcher.Constraint("Vertical", 4))
sketch7.addConstraint(Sketcher.Constraint("Horizontal", 6))
sketch7.addConstraint(Sketcher.Constraint("Horizontal", 8))
sketch7.addConstraint(Sketcher.Constraint("Vertical", 10))
sketch7.addConstraint(Sketcher.Constraint("Horizontal", 12))
sketch7.addConstraint(Sketcher.Constraint("Vertical", 14))
sketch7.addConstraint(Sketcher.Constraint("Vertical", 16))
sketch7.addConstraint(Sketcher.Constraint("Horizontal", 18))
sketch7.addConstraint(Sketcher.Constraint("Vertical", 20))
sketch7.addConstraint(Sketcher.Constraint("Horizontal", 22))
sketch7.addConstraint(Sketcher.Constraint("Horizontal", 24))
sketch7.addConstraint(Sketcher.Constraint("Vertical", 26))
sketch7.addConstraint(Sketcher.Constraint("Horizontal", 28))
sketch7.addConstraint(Sketcher.Constraint("Vertical", 30))
sketch7.addConstraint(Sketcher.Constraint("Vertical", 32))
sketch7.addConstraint(Sketcher.Constraint("Horizontal", 34))
sketch7.addConstraint(Sketcher.Constraint("Vertical", 36))
sketch7.addConstraint(Sketcher.Constraint("Horizontal", 38))
sketch7.addConstraint(Sketcher.Constraint("Vertical", 40))
sketch7.addConstraint(Sketcher.Constraint("Horizontal", 42))
sketch7.addConstraint(Sketcher.Constraint("Vertical", 44))
sketch7.addConstraint(Sketcher.Constraint("Horizontal", 46))
sketch7.addConstraint(Sketcher.Constraint("Equal", 1, 3))
sketch7.addConstraint(Sketcher.Constraint("Equal", 3, 5))
sketch7.addConstraint(Sketcher.Constraint("Equal", 5, 7))
sketch7.addConstraint(Sketcher.Constraint("Equal", 7, 9))
sketch7.addConstraint(Sketcher.Constraint("Equal", 9, 11))
sketch7.addConstraint(Sketcher.Constraint("Equal", 11, 13))
sketch7.addConstraint(Sketcher.Constraint("Equal", 13, 15))
sketch7.addConstraint(Sketcher.Constraint("Equal", 15, 17))
sketch7.addConstraint(Sketcher.Constraint("Equal", 17, 19))
sketch7.addConstraint(Sketcher.Constraint("Equal", 19, 21))
sketch7.addConstraint(Sketcher.Constraint("Equal", 21, 23))
sketch7.addConstraint(Sketcher.Constraint("Equal", 23, 25))
sketch7.addConstraint(Sketcher.Constraint("Equal", 25, 27))
sketch7.addConstraint(Sketcher.Constraint("Equal", 27, 29))
sketch7.addConstraint(Sketcher.Constraint("Equal", 29, 31))
sketch7.addConstraint(Sketcher.Constraint("Equal", 31, 33))
sketch7.addConstraint(Sketcher.Constraint("Equal", 33, 35))
sketch7.addConstraint(Sketcher.Constraint("Equal", 35, 37))
sketch7.addConstraint(Sketcher.Constraint("Equal", 37, 39))
sketch7.addConstraint(Sketcher.Constraint("Equal", 41, 43))
sketch7.addConstraint(Sketcher.Constraint("Equal", 43, 45))
sketch7.addConstraint(Sketcher.Constraint("Equal", 45, 47))
sketch7.addConstraint(Sketcher.Constraint("Horizontal", 1, 3, 3, 3))
sketch7.addConstraint(Sketcher.Constraint("Horizontal", 5, 3, 7, 3))
sketch7.addConstraint(Sketcher.Constraint("Horizontal", 7, 3, 9, 3))
sketch7.addConstraint(Sketcher.Constraint("Horizontal", 3, 3, 11, 3))
sketch7.addConstraint(Sketcher.Constraint("Horizontal", 11, 3, 13, 3))
sketch7.addConstraint(Sketcher.Constraint("Horizontal", 9, 3, 15, 3))
sketch7.addConstraint(Sketcher.Constraint("Horizontal", 13, 3, 17, 3))
sketch7.addConstraint(Sketcher.Constraint("Horizontal", 17, 3, 19, 3))
sketch7.addConstraint(Sketcher.Constraint("Horizontal", 15, 3, 21, 3))
sketch7.addConstraint(Sketcher.Constraint("Horizontal", 21, 3, 23, 3))
sketch7.addConstraint(Sketcher.Constraint("Horizontal", 23, 3, 25, 3))
sketch7.addConstraint(Sketcher.Constraint("Horizontal", 19, 3, 27, 3))
sketch7.addConstraint(Sketcher.Constraint("Horizontal", 27, 3, 29, 3))
sketch7.addConstraint(Sketcher.Constraint("Horizontal", 25, 3, 31, 3))
sketch7.addConstraint(Sketcher.Constraint("Horizontal", 29, 3, 33, 3))
sketch7.addConstraint(Sketcher.Constraint("Horizontal", 33, 3, 35, 3))
sketch7.addConstraint(Sketcher.Constraint("Horizontal", 31, 3, 37, 3))
sketch7.addConstraint(Sketcher.Constraint("Horizontal", 37, 3, 39, 3))
sketch7.addConstraint(Sketcher.Constraint("Horizontal", 6, 2, 8, 2))
sketch7.addConstraint(Sketcher.Constraint("Horizontal", 2, 2, 11, 1))
sketch7.addConstraint(Sketcher.Constraint("Horizontal", 12, 2, 17, 1))
sketch7.addConstraint(Sketcher.Constraint("Horizontal", 15, 1, 21, 1))
sketch7.addConstraint(Sketcher.Constraint("Horizontal", 22, 2, 24, 2))
sketch7.addConstraint(Sketcher.Constraint("Horizontal", 18, 2, 27, 1))
sketch7.addConstraint(Sketcher.Constraint("Horizontal", 28, 2, 33, 1))
sketch7.addConstraint(Sketcher.Constraint("Horizontal", 31, 1, 37, 1))
sketch7.addConstraint(Sketcher.Constraint("Horizontal", 40, 2, 43, 1))
sketch7.addConstraint(Sketcher.Constraint("Horizontal", 44, 2, 47, 1))
sketch7.addConstraint(Sketcher.Constraint("Vertical", 43, 3, 45, 3))
sketch7.addConstraint(Sketcher.Constraint("Vertical", 2, 2, 5, 1))
sketch7.addConstraint(Sketcher.Constraint("Equal", 6, 8))
sketch7.addConstraint(Sketcher.Constraint("Equal", 12, 18))
sketch7.addConstraint(Sketcher.Constraint("Equal", 22, 24))
sketch7.addConstraint(Sketcher.Constraint("Equal", 28, 34))
sketch7.addConstraint(Sketcher.Constraint("Equal", 46, 0))
sketch7.addConstraint(Sketcher.Constraint("Radius", 1, Q("1.1 mm")))
sketch7.addConstraint(Sketcher.Constraint("DistanceX", 42, 1, 42, 2, Q("3 mm")))
sketch7.addConstraint(Sketcher.Constraint("Radius", 41, Q("1.02 mm")))
sketch7.addConstraint(Sketcher.Constraint("DistanceX", -1, 1, 9, 3, Q("33 mm")))
sketch7.addConstraint(Sketcher.Constraint("DistanceX", -1, 1, 13, 3, Q("43 mm")))
sketch7.addConstraint(Sketcher.Constraint("DistanceX", -1, 1, 17, 3, Q("65 mm")))
sketch7.addConstraint(Sketcher.Constraint("DistanceX", 1, 3, -1, 1, Q("77.5 mm")))
sketch7.addConstraint(Sketcher.Constraint("DistanceY", 1, 3, -1, 1, Q("1.5 mm")))
sketch7.addConstraint(Sketcher.Constraint("DistanceX", 25, 3, -1, 1, Q("39.5 mm")))
sketch7.addConstraint(Sketcher.Constraint("DistanceX", 33, 3, -1, 1, Q("7.5 mm")))
sketch7.addConstraint(Sketcher.Constraint("DistanceX", -1, 1, 41, 3, Q("82.5 mm")))
sketch7.addConstraint(Sketcher.Constraint("DistanceY", -1, 1, 41, 3, Q("14.5 mm")))
sketch7.addConstraint(Sketcher.Constraint("DistanceY", -1, 1, 45, 3, Q("4.5 mm")))
sketch7.addConstraint(Sketcher.Constraint("DistanceY", 1, 1, -1, 1, Q("1.4 mm")))
sketch7.addConstraint(Sketcher.Constraint("DistanceX", -1, 1, 40, 2, Q("82.48 mm")))
pocket4 = doc.addObject("PartDesign::Pocket", "Pocket003")
body.addObject(pocket4)
pocket4.Profile = sketch7
pocket4.Type = "ThroughAll"
pocket4.Reversed = True
doc.recompute()

fillet2 = doc.addObject("PartDesign::Fillet", "Fillet001")
body.addObject(fillet2)
fillet2.Base = (pocket4, edges_at(pocket4, [(89.5, 1.5, 24.5), (89.5, 1.5, -4.5), (82.5, 1.5, -4.5)]))
fillet2.Radius = 2
doc.recompute()

fillet3 = doc.addObject("PartDesign::Fillet", "Fillet002")
body.addObject(fillet3)
fillet3.Base = (fillet2, edges_at(fillet2, [(76.5, 1.5, 24.5), (25.5, 1.5, 4.5)]))
fillet3.Radius = 10

sketch8 = doc.addObject("Sketcher::SketchObject", "Sketch007")
body.addObject(sketch8)
sketch8.AttachmentSupport = (doc.XZ_Plane, [""])
sketch8.MapMode = "FlatFace"
sketch8.AttachmentOffset = App.Placement(App.Vector(0, 0, -3), App.Rotation())
add_polygon(sketch8, [(78, 4), (34, 4), (78, 21)])
sketch8.addConstraint(Sketcher.Constraint("Horizontal", 0))
sketch8.addConstraint(Sketcher.Constraint("Vertical", 2))
sketch8.addConstraint(Sketcher.Constraint("DistanceY", -1, 1, 0, 2, Q("3.6 mm")))
sketch8.addConstraint(Sketcher.Constraint("DistanceX", -1, 1, 1, 2, Q("77.5 mm")))
sketch8.addConstraint(Sketcher.Constraint("DistanceX", 0, 2, 0, 1, Q("43.338723 mm")))
sketch8.addConstraint(Sketcher.Constraint("DistanceY", 2, 2, 2, 1, Q("16.995578 mm")))
pocket5 = doc.addObject("PartDesign::Pocket", "Pocket004")
body.addObject(pocket5)
pocket5.Profile = sketch8
pocket5.Type = "ThroughAll"
pocket5.Reversed = True
doc.recompute()

fillet4 = doc.addObject("PartDesign::Fillet", "Fillet003")
body.addObject(fillet4)
fillet4.Base = (pocket5, edges_at(pocket5, [(77.5, 1.5, 20.596), (34.161, 1.5, 3.6), (77.5, 1.5, 3.6)]))
fillet4.Radius = 2

sketch9 = doc.addObject("Sketcher::SketchObject", "Sketch008")
body.addObject(sketch9)
sketch9.AttachmentSupport = (doc.XZ_Plane, [""])
sketch9.MapMode = "FlatFace"
sketch9.AttachmentOffset = App.Placement(App.Vector(0, 0, -3), App.Rotation())
sketch9.addGeometry(Part.Circle(App.Vector(-68.5, -7.5, 0), App.Vector(0, 0, 1), 1.1), False)
sketch9.addGeometry(Part.Circle(App.Vector(31.5, -7.5, 0), App.Vector(0, 0, 1), 1.1), False)
sketch9.addGeometry(Part.Circle(App.Vector(35, 5.5, 0), App.Vector(0, 0, 1), 1.5), False)
sketch9.addGeometry(Part.Circle(App.Vector(-72, 5.5, 0), App.Vector(0, 0, 1), 1.5), False)
sketch9.addConstraint(Sketcher.Constraint("Equal", 0, 1))
sketch9.addConstraint(Sketcher.Constraint("Equal", 2, 3))
sketch9.addConstraint(Sketcher.Constraint("Horizontal", 0, 3, 1, 3))
sketch9.addConstraint(Sketcher.Constraint("Horizontal", 2, 3, 3, 3))
sketch9.addConstraint(Sketcher.Constraint("Diameter", 2, Q("3 mm")))
sketch9.addConstraint(Sketcher.Constraint("Diameter", 0, Q("2.2 mm")))
sketch9.addConstraint(Sketcher.Constraint("DistanceX", -1, 1, 2, 3, Q("35 mm")))
sketch9.addConstraint(Sketcher.Constraint("DistanceX", 3, 3, -1, 1, Q("72 mm")))
sketch9.addConstraint(Sketcher.Constraint("DistanceX", 0, 3, 1, 3, Q("100 mm")))
sketch9.addConstraint(Sketcher.Constraint("DistanceY", 1, 3, 2, 3, Q("13 mm")))
sketch9.addConstraint(Sketcher.Constraint("DistanceX", 0, 3, -1, 1, Q("68.5 mm")))
sketch9.addConstraint(Sketcher.Constraint("DistanceY", 0, 3, -1, 1, Q("7.5 mm")))
pocket6 = doc.addObject("PartDesign::Pocket", "Pocket005")
body.addObject(pocket6)
pocket6.Profile = sketch9
pocket6.Type = "ThroughAll"
pocket6.Reversed = True

doc.recompute()
